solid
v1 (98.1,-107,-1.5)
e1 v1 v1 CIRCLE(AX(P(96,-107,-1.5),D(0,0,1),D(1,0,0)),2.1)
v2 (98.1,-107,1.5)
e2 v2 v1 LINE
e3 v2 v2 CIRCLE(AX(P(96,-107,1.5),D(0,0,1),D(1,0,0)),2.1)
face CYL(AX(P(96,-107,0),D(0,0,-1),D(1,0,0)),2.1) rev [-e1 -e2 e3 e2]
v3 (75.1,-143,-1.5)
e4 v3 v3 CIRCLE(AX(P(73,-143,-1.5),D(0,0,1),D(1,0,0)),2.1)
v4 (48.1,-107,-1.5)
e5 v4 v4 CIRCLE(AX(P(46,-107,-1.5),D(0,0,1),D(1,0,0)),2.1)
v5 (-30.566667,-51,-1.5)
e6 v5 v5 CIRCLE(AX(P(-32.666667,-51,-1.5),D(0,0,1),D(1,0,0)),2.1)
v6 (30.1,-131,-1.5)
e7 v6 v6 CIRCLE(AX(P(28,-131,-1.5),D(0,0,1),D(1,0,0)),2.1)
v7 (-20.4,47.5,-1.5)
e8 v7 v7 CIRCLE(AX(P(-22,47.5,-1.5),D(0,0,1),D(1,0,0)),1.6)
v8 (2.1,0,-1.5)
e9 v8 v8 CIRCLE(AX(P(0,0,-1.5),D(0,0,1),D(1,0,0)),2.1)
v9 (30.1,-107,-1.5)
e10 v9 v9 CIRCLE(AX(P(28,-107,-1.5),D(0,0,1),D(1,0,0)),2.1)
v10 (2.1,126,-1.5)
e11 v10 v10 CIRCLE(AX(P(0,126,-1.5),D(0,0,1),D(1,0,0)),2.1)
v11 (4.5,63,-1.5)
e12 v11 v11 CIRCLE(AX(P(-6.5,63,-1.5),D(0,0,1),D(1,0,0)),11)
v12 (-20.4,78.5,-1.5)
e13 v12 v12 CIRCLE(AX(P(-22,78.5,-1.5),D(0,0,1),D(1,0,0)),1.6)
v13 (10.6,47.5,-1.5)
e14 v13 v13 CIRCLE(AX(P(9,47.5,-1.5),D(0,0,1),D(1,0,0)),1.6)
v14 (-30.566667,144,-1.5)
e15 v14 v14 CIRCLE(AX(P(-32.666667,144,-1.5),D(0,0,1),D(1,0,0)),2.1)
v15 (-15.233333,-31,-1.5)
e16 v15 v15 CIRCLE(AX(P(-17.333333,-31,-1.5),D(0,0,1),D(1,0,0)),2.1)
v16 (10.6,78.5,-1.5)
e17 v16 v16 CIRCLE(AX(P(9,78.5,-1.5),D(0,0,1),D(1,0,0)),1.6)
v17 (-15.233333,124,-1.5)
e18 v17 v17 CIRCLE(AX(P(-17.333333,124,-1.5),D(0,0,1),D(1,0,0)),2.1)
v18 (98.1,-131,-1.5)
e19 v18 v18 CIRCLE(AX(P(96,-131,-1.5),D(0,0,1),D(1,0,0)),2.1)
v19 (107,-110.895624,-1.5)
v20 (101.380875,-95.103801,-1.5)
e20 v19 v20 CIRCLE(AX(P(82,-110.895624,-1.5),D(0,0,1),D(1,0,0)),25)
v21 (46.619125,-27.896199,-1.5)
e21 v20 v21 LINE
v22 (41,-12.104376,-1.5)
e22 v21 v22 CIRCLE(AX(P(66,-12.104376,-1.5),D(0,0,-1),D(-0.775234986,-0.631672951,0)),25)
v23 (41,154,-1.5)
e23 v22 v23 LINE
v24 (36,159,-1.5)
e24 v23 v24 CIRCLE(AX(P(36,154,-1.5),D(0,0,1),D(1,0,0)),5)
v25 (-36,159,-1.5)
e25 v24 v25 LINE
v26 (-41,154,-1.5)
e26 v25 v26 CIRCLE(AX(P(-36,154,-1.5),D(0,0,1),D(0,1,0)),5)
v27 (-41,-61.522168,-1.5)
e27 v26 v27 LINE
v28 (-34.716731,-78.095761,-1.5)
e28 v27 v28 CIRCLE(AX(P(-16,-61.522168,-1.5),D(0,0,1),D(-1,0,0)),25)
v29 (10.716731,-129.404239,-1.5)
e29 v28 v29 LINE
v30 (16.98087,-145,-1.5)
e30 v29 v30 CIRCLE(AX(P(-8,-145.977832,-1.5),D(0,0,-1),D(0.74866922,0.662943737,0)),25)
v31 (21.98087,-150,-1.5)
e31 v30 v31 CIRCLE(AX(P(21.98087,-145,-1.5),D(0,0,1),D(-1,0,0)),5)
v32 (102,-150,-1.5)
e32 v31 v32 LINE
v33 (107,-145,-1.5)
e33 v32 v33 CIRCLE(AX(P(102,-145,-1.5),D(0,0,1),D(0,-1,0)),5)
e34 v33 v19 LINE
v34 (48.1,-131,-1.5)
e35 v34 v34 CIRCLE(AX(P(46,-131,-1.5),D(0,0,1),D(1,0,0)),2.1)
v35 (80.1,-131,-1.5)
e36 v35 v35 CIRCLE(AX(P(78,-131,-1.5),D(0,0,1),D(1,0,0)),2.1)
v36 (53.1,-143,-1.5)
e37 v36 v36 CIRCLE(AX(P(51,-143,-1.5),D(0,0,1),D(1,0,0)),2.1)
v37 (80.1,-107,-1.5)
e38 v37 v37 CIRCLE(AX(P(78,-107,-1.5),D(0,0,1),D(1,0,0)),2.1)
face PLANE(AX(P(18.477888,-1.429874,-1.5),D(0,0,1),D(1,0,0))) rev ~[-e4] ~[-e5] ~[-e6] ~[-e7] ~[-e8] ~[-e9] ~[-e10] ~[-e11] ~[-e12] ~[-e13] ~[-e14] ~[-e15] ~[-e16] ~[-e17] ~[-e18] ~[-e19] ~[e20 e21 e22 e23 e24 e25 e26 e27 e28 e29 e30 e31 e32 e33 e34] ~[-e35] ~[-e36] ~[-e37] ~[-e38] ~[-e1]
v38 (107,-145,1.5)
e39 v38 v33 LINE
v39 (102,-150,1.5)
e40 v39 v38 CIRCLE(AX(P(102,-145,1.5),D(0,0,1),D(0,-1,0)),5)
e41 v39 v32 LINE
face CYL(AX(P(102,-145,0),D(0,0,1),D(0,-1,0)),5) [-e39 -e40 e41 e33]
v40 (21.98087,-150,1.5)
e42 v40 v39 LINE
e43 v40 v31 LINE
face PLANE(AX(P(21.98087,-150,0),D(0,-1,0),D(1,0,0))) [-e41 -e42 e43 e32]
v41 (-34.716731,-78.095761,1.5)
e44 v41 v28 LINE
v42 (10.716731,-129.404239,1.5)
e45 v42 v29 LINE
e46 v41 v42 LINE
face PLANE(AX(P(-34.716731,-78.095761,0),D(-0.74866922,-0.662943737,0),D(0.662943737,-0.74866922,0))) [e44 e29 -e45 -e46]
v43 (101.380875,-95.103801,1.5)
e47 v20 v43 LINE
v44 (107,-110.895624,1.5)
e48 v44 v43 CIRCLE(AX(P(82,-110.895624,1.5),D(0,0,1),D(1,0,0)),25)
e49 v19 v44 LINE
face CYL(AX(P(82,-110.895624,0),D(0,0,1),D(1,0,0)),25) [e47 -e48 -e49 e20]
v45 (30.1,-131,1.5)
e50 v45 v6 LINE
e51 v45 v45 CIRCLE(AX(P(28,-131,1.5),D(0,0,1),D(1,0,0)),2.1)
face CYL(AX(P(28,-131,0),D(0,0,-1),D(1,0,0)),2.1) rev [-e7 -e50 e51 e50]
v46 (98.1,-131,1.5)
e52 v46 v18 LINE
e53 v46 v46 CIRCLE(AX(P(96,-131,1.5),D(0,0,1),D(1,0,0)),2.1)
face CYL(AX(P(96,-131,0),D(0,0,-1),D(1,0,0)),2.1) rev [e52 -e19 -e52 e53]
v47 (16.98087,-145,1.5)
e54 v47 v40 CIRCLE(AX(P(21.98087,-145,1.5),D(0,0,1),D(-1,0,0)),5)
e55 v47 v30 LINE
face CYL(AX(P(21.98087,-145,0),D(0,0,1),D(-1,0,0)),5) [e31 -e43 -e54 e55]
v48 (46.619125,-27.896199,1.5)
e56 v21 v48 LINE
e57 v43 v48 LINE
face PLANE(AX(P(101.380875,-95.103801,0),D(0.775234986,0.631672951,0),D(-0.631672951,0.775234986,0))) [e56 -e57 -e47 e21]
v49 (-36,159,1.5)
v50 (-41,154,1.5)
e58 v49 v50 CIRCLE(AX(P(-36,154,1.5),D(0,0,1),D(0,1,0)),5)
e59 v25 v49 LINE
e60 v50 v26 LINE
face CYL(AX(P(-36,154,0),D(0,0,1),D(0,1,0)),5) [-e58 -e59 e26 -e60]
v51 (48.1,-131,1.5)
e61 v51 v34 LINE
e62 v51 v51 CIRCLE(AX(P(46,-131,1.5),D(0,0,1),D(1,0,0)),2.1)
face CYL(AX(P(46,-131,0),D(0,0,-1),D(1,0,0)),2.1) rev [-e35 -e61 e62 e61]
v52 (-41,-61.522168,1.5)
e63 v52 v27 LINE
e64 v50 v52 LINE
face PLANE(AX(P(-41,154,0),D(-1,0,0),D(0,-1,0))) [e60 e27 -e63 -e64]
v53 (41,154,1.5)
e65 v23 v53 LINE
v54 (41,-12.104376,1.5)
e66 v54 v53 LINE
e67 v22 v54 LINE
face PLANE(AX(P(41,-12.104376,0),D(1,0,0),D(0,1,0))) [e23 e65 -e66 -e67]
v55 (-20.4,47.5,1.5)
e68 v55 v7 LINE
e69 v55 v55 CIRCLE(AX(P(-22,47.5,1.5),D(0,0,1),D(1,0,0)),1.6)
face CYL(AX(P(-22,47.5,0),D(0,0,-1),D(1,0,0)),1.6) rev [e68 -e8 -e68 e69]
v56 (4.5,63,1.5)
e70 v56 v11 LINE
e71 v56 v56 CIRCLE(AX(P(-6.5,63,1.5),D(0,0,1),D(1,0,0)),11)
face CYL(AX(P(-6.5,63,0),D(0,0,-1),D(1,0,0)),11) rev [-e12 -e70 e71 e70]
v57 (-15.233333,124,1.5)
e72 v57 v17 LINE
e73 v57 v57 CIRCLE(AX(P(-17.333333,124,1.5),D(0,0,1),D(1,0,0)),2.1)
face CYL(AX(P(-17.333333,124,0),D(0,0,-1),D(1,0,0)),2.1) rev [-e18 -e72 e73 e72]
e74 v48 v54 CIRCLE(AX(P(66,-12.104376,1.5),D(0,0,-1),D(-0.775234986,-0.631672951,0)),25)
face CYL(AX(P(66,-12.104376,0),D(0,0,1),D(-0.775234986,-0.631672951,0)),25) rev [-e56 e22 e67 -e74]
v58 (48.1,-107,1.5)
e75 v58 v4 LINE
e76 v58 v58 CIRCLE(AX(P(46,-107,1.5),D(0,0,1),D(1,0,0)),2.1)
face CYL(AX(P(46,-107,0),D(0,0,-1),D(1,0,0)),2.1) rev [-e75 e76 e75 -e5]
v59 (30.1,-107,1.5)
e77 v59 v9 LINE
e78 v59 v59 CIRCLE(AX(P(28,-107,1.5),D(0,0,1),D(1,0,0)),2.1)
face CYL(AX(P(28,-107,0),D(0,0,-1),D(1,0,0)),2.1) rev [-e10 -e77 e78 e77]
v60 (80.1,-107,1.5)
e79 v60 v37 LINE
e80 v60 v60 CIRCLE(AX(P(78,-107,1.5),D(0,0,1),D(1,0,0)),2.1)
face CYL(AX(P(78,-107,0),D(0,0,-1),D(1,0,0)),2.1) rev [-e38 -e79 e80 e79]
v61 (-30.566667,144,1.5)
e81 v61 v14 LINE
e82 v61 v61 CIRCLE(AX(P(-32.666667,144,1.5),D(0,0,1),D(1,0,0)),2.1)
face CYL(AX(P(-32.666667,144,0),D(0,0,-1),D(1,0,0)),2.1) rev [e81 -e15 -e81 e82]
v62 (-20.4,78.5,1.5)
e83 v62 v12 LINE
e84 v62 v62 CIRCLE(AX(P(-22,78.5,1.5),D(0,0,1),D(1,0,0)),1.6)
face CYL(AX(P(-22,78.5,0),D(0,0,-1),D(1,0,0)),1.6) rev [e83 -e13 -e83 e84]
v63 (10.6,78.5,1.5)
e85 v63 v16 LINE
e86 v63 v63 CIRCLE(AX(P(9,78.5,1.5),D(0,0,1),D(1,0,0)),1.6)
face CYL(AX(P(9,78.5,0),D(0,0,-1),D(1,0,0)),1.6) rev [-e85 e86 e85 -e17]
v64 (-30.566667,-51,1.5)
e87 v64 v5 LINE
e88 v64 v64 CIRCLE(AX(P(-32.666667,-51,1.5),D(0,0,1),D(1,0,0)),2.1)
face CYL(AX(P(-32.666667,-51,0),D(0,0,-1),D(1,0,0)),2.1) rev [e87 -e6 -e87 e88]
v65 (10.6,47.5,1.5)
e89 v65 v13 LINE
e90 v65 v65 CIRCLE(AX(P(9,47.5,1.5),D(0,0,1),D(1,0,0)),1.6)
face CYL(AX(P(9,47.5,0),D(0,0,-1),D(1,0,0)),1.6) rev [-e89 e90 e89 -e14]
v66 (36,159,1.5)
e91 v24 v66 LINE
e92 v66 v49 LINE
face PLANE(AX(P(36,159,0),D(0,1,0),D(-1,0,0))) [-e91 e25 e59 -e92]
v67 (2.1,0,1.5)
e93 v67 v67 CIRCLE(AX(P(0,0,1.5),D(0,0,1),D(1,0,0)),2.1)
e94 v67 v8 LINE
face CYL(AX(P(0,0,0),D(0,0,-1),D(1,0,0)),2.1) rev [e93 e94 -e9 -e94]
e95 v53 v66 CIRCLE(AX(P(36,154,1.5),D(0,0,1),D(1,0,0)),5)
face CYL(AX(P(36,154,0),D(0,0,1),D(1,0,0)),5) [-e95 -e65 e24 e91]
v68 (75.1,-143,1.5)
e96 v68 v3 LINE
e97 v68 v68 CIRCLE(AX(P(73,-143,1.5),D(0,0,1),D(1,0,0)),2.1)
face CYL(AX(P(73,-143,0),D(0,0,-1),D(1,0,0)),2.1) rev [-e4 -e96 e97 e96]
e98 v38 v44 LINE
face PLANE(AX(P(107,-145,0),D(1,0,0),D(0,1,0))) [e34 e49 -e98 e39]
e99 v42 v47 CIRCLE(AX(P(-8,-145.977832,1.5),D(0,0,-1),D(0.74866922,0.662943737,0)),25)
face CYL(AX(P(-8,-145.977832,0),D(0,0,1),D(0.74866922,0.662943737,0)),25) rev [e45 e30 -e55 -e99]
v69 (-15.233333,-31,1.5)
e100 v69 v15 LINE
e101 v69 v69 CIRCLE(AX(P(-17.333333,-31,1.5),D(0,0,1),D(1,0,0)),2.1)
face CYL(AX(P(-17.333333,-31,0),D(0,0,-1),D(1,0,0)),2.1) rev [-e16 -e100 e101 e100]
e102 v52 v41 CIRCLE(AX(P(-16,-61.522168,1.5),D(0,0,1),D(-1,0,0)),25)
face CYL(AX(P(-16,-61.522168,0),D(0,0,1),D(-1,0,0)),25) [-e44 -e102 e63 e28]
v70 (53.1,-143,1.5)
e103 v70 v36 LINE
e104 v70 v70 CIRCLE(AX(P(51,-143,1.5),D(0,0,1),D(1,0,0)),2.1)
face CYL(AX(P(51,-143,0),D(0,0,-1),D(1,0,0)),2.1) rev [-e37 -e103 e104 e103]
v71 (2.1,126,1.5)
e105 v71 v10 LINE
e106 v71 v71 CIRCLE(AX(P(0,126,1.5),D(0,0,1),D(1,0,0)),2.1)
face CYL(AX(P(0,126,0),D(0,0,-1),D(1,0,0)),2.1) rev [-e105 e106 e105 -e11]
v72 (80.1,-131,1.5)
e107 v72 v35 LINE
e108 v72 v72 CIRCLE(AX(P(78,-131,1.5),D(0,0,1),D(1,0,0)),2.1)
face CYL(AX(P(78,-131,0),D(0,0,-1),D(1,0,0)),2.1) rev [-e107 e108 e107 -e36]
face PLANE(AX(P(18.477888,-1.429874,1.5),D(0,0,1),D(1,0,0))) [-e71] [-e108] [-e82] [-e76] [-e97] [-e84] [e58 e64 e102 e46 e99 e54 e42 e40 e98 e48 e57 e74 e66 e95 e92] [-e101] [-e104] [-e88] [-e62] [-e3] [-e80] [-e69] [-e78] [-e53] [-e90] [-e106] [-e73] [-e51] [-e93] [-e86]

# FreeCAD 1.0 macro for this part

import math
import FreeCAD as App
import Part
import Sketcher
from FreeCAD import Vector
Q = App.Units.Quantity

doc = App.newDocument("Part")
body = doc.addObject("PartDesign::Body", "Body")

# Sketch on XY plane
sketch1 = body.newObject("Sketcher::SketchObject", "Sketch")
sketch1.AttachmentSupport = (doc.getObject("XY_Plane"), [""])
sketch1.MapMode = "FlatFace"
sketch1.addGeometry([
    Part.LineSegment(Vector(107, -145, 0), Vector(107, -110.895624, 0)),  # 0
    Part.ArcOfCircle(Part.Circle(Vector(82, -110.895624, 0), Vector(0, 0, 1), 25), math.radians(0), math.radians(39.173658)),  # 1
    Part.LineSegment(Vector(101.380875, -95.103801, 0), Vector(46.619125, -27.896199, 0)),  # 2
    Part.ArcOfCircle(Part.Circle(Vector(66, -12.104376, 0), Vector(0, 0, 1), 25), math.radians(-180), math.radians(-140.826342)),  # 3
    Part.LineSegment(Vector(41, -12.104376, 0), Vector(41, 154, 0)),  # 4
    Part.ArcOfCircle(Part.Circle(Vector(36, 154, 0), Vector(0, 0, 1), 5), math.radians(0), math.radians(90)),  # 5
    Part.LineSegment(Vector(36, 159, 0), Vector(-36, 159, 0)),  # 6
    Part.ArcOfCircle(Part.Circle(Vector(-36, 154, 0), Vector(0, 0, 1), 5), math.radians(90), math.radians(180)),  # 7
    Part.LineSegment(Vector(-41, 154, 0), Vector(-41, -61.522168, 0)),  # 8
    Part.ArcOfCircle(Part.Circle(Vector(-16, -61.522168, 0), Vector(0, 0, 1), 25), math.radians(180), math.radians(221.524767)),  # 9
    Part.LineSegment(Vector(-34.716731, -78.095761, 0), Vector(10.716731, -129.404239, 0)),  # 10
    Part.ArcOfCircle(Part.Circle(Vector(-8, -145.977832, 0), Vector(0, 0, 1), 25), math.radians(2.241598), math.radians(41.524767)),  # 11
    Part.ArcOfCircle(Part.Circle(Vector(21.98087, -145, 0), Vector(0, 0, 1), 5), math.radians(180), math.radians(270)),  # 12
    Part.LineSegment(Vector(21.98087, -150, 0), Vector(102, -150, 0)),  # 13
    Part.ArcOfCircle(Part.Circle(Vector(102, -145, 0), Vector(0, 0, 1), 5), math.radians(-90), math.radians(0)),  # 14
    Part.Circle(Vector(28, -131, 0), Vector(0, 0, 1), 2.1),  # 15
    Part.Circle(Vector(28, -107, 0), Vector(0, 0, 1), 2.1),  # 16
    Part.Circle(Vector(-32.666667, -51, 0), Vector(0, 0, 1), 2.1),  # 17
    Part.Circle(Vector(-17.333333, -31, 0), Vector(0, 0, 1), 2.1),  # 18
    Part.Circle(Vector(0, 0, 0), Vector(0, 0, 1), 2.1),  # 19
    Part.Circle(Vector(46, -131, 0), Vector(0, 0, 1), 2.1),  # 20
    Part.Circle(Vector(51, -143, 0), Vector(0, 0, 1), 2.1),  # 21
    Part.Circle(Vector(46, -107, 0), Vector(0, 0, 1), 2.1),  # 22
    Part.Circle(Vector(73, -143, 0), Vector(0, 0, 1), 2.1),  # 23
    Part.Circle(Vector(78, -131, 0), Vector(0, 0, 1), 2.1),  # 24
    Part.Circle(Vector(96, -131, 0), Vector(0, 0, 1), 2.1),  # 25
    Part.Circle(Vector(78, -107, 0), Vector(0, 0, 1), 2.1),  # 26
    Part.Circle(Vector(96, -107, 0), Vector(0, 0, 1), 2.1),  # 27
    Part.Circle(Vector(-22, 47.5, 0), Vector(0, 0, 1), 1.6),  # 28
    Part.Circle(Vector(-6.5, 63, 0), Vector(0, 0, 1), 11),  # 29
    Part.Circle(Vector(9, 47.5, 0), Vector(0, 0, 1), 1.6),  # 30
    Part.Circle(Vector(-22, 78.5, 0), Vector(0, 0, 1), 1.6),  # 31
    Part.Circle(Vector(-32.666667, 144, 0), Vector(0, 0, 1), 2.1),  # 32
    Part.Circle(Vector(-17.333333, 124, 0), Vector(0, 0, 1), 2.1),  # 33
    Part.Circle(Vector(9, 78.5, 0), Vector(0, 0, 1), 1.6),  # 34
    Part.Circle(Vector(0, 126, 0), Vector(0, 0, 1), 2.1),  # 35
], False)
sketch1.addConstraint([
    Sketcher.Constraint("Tangent", 0, 2, 1, 1),
    Sketcher.Constraint("Tangent", 1, 2, 2, 1),
    Sketcher.Constraint("Tangent", 2, 2, 3, 2),
    Sketcher.Constraint("Tangent", 3, 1, 4, 1),
    Sketcher.Constraint("Tangent", 4, 2, 5, 1),
    Sketcher.Constraint("Tangent", 5, 2, 6, 1),
    Sketcher.Constraint("Tangent", 6, 2, 7, 1),
    Sketcher.Constraint("Tangent", 7, 2, 8, 1),
    Sketcher.Constraint("Tangent", 8, 2, 9, 1),
    Sketcher.Constraint("Tangent", 9, 2, 10, 1),
    Sketcher.Constraint("Tangent", 10, 2, 11, 2),
    Sketcher.Constraint("Coincident", 11, 1, 12, 1),
    Sketcher.Constraint("Tangent", 12, 2, 13, 1),
    Sketcher.Constraint("Tangent", 13, 2, 14, 1),
    Sketcher.Constraint("Tangent", 14, 2, 0, 1),
    Sketcher.Constraint("Vertical", 0),
    Sketcher.Constraint("Vertical", 4),
    Sketcher.Constraint("Horizontal", 6),
    Sketcher.Constraint("Vertical", 8),
    Sketcher.Constraint("Horizontal", 13),
    Sketcher.Constraint("Coincident", 19, 3, -1, 1),
    Sketcher.Constraint("Equal", 1, 3),
    Sketcher.Constraint("Equal", 5, 7),
    Sketcher.Constraint("Equal", 3, 9),
    Sketcher.Constraint("Equal", 9, 11),
    Sketcher.Constraint("Equal", 7, 12),
    Sketcher.Constraint("Equal", 12, 14),
    Sketcher.Constraint("Equal", 15, 16),
    Sketcher.Constraint("Equal", 16, 17),
    Sketcher.Constraint("Equal", 17, 18),
    Sketcher.Constraint("Equal", 18, 19),
    Sketcher.Constraint("Equal", 19, 20),
    Sketcher.Constraint("Equal", 20, 21),
    Sketcher.Constraint("Equal", 21, 22),
    Sketcher.Constraint("Equal", 22, 23),
    Sketcher.Constraint("Equal", 23, 24),
    Sketcher.Constraint("Equal", 24, 25),
    Sketcher.Constraint("Equal", 25, 26),
    Sketcher.Constraint("Equal", 26, 27),
    Sketcher.Constraint("Equal", 28, 30),
    Sketcher.Constraint("Equal", 30, 31),
    Sketcher.Constraint("Equal", 27, 32),
    Sketcher.Constraint("Equal", 32, 33),
    Sketcher.Constraint("Equal", 31, 34),
    Sketcher.Constraint("Equal", 33, 35),
    Sketcher.Constraint("PointOnObject", 35, 3, -2),
    Sketcher.Constraint("Horizontal", 15, 3, 20, 3),
    Sketcher.Constraint("Horizontal", 16, 3, 22, 3),
    Sketcher.Constraint("Horizontal", 21, 3, 23, 3),
    Sketcher.Constraint("Horizontal", 20, 3, 24, 3),
    Sketcher.Constraint("Horizontal", 24, 3, 25, 3),
    Sketcher.Constraint("Horizontal", 22, 3, 26, 3),
    Sketcher.Constraint("Horizontal", 26, 3, 27, 3),
    Sketcher.Constraint("Horizontal", 28, 3, 30, 3),
    Sketcher.Constraint("Horizontal", 31, 3, 34, 3),
    Sketcher.Constraint("Horizontal", 14, 3, 11, 1),
    Sketcher.Constraint("Vertical", 15, 3, 16, 3),
    Sketcher.Constraint("Vertical", 20, 3, 22, 3),
    Sketcher.Constraint("Vertical", 24, 3, 26, 3),
    Sketcher.Constraint("Vertical", 25, 3, 27, 3),
    Sketcher.Constraint("Vertical", 28, 3, 31, 3),
    Sketcher.Constraint("Vertical", 17, 3, 32, 3),
    Sketcher.Constraint("Vertical", 18, 3, 33, 3),
    Sketcher.Constraint("Vertical", 30, 3, 34, 3),
    Sketcher.Constraint("Diameter", 29, Q("22 mm")),
    Sketcher.Constraint("Radius", 1, Q("25 mm")),
    Sketcher.Constraint("Radius", 5, Q("5 mm")),
    Sketcher.Constraint("Diameter", 15, Q("4.2 mm")),
    Sketcher.Constraint("Diameter", 28, Q("3.2 mm")),
    Sketcher.Constraint("DistanceX", 6, 2, 6, 1, Q("72 mm")),
    Sketcher.Constraint("DistanceX", -1, 1, 1, 3, Q("82 mm")),
    Sketcher.Constraint("DistanceX", -1, 1, 3, 3, Q("66 mm")),
    Sketcher.Constraint("DistanceY", -1, 1, 5, 3, Q("154 mm")),
    Sketcher.Constraint("DistanceX", 11, 3, -1, 1, Q("8 mm")),
    Sketcher.Constraint("DistanceY", 12, 3, -1, 1, Q("145 mm")),
    Sketcher.Constraint("DistanceX", -1, 1, 15, 3, Q("28 mm")),
    Sketcher.Constraint("DistanceY", 15, 3, -1, 1, Q("131 mm")),
    Sketcher.Constraint("DistanceY", 16, 3, -1, 1, Q("107 mm")),
    Sketcher.Constraint("DistanceY", 17, 3, -1, 1, Q("51 mm")),
    Sketcher.Constraint("DistanceY", 18, 3, -1, 1, Q("31 mm")),
    Sketcher.Constraint("DistanceX", -1, 1, 20, 3, Q("46 mm")),
    Sketcher.Constraint("DistanceX", -1, 1, 21, 3, Q("51 mm")),
    Sketcher.Constraint("DistanceY", 21, 3, -1, 1, Q("143 mm")),
    Sketcher.Constraint("DistanceX", -1, 1, 23, 3, Q("73 mm")),
    Sketcher.Constraint("DistanceX", -1, 1, 24, 3, Q("78 mm")),
    Sketcher.Constraint("DistanceX", -1, 1, 25, 3, Q("96 mm")),
    Sketcher.Constraint("DistanceX", 28, 3, -1, 1, Q("22 mm")),
    Sketcher.Constraint("DistanceY", -1, 1, 29, 3, Q("63 mm")),
    Sketcher.Constraint("DistanceX", -1, 1, 30, 3, Q("9 mm")),
    Sketcher.Constraint("DistanceY", -1, 1, 32, 3, Q("144 mm")),
    Sketcher.Constraint("DistanceY", -1, 1, 33, 3, Q("124 mm")),
    Sketcher.Constraint("DistanceY", -1, 1, 35, 3, Q("126 mm")),
    Sketcher.Constraint("DistanceY", 28, 3, 31, 3, Q("31 mm")),
    Sketcher.Constraint("DistanceY", -1, 1, 28, 3, Q("47.5 mm")),
    Sketcher.Constraint("DistanceX", 29, 3, -1, 1, Q("6.5 mm")),
    Sketcher.Constraint("Distance", 2, Q("86.6932 mm")),
    Sketcher.Constraint("DistanceX", 13, 1, 13, 2, Q("80.01913 mm")),
    Sketcher.Constraint("DistanceY", 1, 2, -1, 1, Q("95.103801 mm")),
    Sketcher.Constraint("DistanceY", 8, 2, 8, 1, Q("215.522168 mm")),
    Sketcher.Constraint("DistanceX", 18, 3, 2, 2, Q("63.952459 mm")),
    Sketcher.Constraint("DistanceX", 17, 3, -1, 1, Q("32.666667 mm")),
])
pad1 = body.newObject("PartDesign::Pad", "Pad")
pad1.Profile = sketch1
pad1.Length = 3
pad1.Midplane = True

doc.recompute()
